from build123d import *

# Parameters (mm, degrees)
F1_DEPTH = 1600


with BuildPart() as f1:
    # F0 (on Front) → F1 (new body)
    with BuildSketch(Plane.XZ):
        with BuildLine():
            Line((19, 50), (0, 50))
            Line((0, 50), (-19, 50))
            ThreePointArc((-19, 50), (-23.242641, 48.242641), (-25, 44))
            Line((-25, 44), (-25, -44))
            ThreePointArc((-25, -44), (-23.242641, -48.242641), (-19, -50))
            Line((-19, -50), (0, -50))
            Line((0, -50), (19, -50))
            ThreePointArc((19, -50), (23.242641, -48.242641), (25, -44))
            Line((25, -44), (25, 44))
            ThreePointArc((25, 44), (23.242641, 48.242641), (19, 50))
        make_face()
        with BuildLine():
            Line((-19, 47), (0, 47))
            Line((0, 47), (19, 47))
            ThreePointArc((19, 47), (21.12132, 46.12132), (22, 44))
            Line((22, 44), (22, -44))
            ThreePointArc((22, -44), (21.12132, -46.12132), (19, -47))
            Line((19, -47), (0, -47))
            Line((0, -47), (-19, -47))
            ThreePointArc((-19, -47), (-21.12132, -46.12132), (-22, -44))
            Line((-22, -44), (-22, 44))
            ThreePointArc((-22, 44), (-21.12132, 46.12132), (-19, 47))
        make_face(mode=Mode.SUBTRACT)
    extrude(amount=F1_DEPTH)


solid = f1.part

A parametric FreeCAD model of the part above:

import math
import FreeCAD as App
import Part
import Sketcher

V = App.Vector

doc = App.newDocument("Part")
params = doc.addObject("Spreadsheet::Sheet", "Params")
for row, (alias, value) in enumerate([
    ("sketch1_radius", "5.999999 mm"),
    ("sketch1_radius2", "3.000001 mm"),
    ("sketch1_width", "38 mm"),
    ("sketch1_height", "88 mm"),
    ("pad1_length", "1600 mm"),
], start=1):
    params.set(f"A{row}", alias)
    params.set(f"B{row}", "=" + value)
    params.setAlias(f"B{row}", alias)

body = doc.addObject("PartDesign::Body", "Body")

sketch1 = body.newObject("Sketcher::SketchObject", "Sketch")
sketch1.AttachmentSupport = (doc.getObject("XZ_Plane"), [""])
sketch1.MapMode = "FlatFace"
sketch1.addGeometry(Part.LineSegment(V(19, 50, 0), V(-19, 50, 0)), False)
sketch1.addGeometry(Part.ArcOfCircle(Part.Circle(V(-19.000001, 44.000001, 0), V(0, 0, 1), 5.999999), math.radians(89.99999), math.radians(180.00001)), False)
sketch1.addGeometry(Part.LineSegment(V(-25, 44, 0), V(-25, -44, 0)), False)
sketch1.addGeometry(Part.ArcOfCircle(Part.Circle(V(-19.000001, -44.000001, 0), V(0, 0, 1), 5.999999), math.radians(179.99999), math.radians(270.00001)), False)
sketch1.addGeometry(Part.LineSegment(V(-19, -50, 0), V(19, -50, 0)), False)
sketch1.addGeometry(Part.ArcOfCircle(Part.Circle(V(19.000001, -44.000001, 0), V(0, 0, 1), 5.999999), math.radians(-90.00001), math.radians(0.00001)), False)
sketch1.addGeometry(Part.LineSegment(V(25, -44, 0), V(25, 44, 0)), False)
sketch1.addGeometry(Part.ArcOfCircle(Part.Circle(V(19.000001, 44.000001, 0), V(0, 0, 1), 5.999999), math.radians(-0.00001), math.radians(90.00001)), False)
sketch1.addGeometry(Part.ArcOfCircle(Part.Circle(V(-18.999999, 43.999999, 0), V(0, 0, 1), 3.000001), math.radians(90.000022), math.radians(179.999978)), False)
sketch1.addGeometry(Part.LineSegment(V(-19, 47, 0), V(19, 47, 0)), False)
sketch1.addGeometry(Part.ArcOfCircle(Part.Circle(V(18.999999, 43.999999, 0), V(0, 0, 1), 3.000001), math.radians(0.000022), math.radians(89.999978)), False)
sketch1.addGeometry(Part.LineSegment(V(22, 44, 0), V(22, -44, 0)), False)
sketch1.addGeometry(Part.ArcOfCircle(Part.Circle(V(18.999999, -43.999999, 0), V(0, 0, 1), 3.000001), math.radians(-89.999978), math.radians(-0.000022)), False)
sketch1.addGeometry(Part.LineSegment(V(19, -47, 0), V(-19, -47, 0)), False)
sketch1.addGeometry(Part.ArcOfCircle(Part.Circle(V(-18.999999, -43.999999, 0), V(0, 0, 1), 3.000001), math.radians(-179.999978), math.radians(-90.000022)), False)
sketch1.addGeometry(Part.LineSegment(V(-22, -44, 0), V(-22, 44, 0)), False)
sketch1.addConstraint(Sketcher.Constraint("Tangent", 0, 2, 1, 1))
sketch1.addConstraint(Sketcher.Constraint("Tangent", 1, 2, 2, 1))
sketch1.addConstraint(Sketcher.Constraint("Tangent", 2, 2, 3, 1))
sketch1.addConstraint(Sketcher.Constraint("Tangent", 3, 2, 4, 1))
sketch1.addConstraint(Sketcher.Constraint("Tangent", 4, 2, 5, 1))
sketch1.addConstraint(Sketcher.Constraint("Tangent", 5, 2, 6, 1))
sketch1.addConstraint(Sketcher.Constraint("Tangent", 6, 2, 7, 1))
sketch1.addConstraint(Sketcher.Constraint("Tangent", 7, 2, 0, 1))
sketch1.addConstraint(Sketcher.Constraint("Tangent", 8, 1, 9, 1))
sketch1.addConstraint(Sketcher.Constraint("Tangent", 9, 2, 10, 2))
sketch1.addConstraint(Sketcher.Constraint("Tangent", 10, 1, 11, 1))
sketch1.addConstraint(Sketcher.Constraint("Tangent", 11, 2, 12, 2))
sketch1.addConstraint(Sketcher.Constraint("Tangent", 12, 1, 13, 1))
sketch1.addConstraint(Sketcher.Constraint("Tangent", 13, 2, 14, 2))
sketch1.addConstraint(Sketcher.Constraint("Tangent", 14, 1, 15, 1))
sketch1.addConstraint(Sketcher.Constraint("Tangent", 15, 2, 8, 2))
sketch1.addConstraint(Sketcher.Constraint("Horizontal", 0))
sketch1.addConstraint(Sketcher.Constraint("Vertical", 2))
sketch1.addConstraint(Sketcher.Constraint("Horizontal", 4))
sketch1.addConstraint(Sketcher.Constraint("Vertical", 6))
sketch1.addConstraint(Sketcher.Constraint("Horizontal", 9))
sketch1.addConstraint(Sketcher.Constraint("Vertical", 11))
sketch1.addConstraint(Sketcher.Constraint("Horizontal", 13))
sketch1.addConstraint(Sketcher.Constraint("Vertical", 15))
sketch1.addConstraint(Sketcher.Constraint("Coincident", 8, 3, 1, 3))
sketch1.addConstraint(Sketcher.Constraint("Coincident", 10, 3, 7, 3))
sketch1.addConstraint(Sketcher.Constraint("Coincident", 12, 3, 5, 3))
sketch1.addConstraint(Sketcher.Constraint("Equal", 1, 3))
sketch1.addConstraint(Sketcher.Constraint("Equal", 3, 5))
sketch1.addConstraint(Sketcher.Constraint("Equal", 5, 7))
sketch1.addConstraint(Sketcher.Constraint("Equal", 12, 14))
sketch1.addConstraint(Sketcher.Constraint("Symmetric", 1, 3, 5, 3, -1, 1))
sketch1.addConstraint(Sketcher.Constraint("Radius", 1, 5.999999))
sketch1.addConstraint(Sketcher.Constraint("Radius", 8, 3.000001))
sketch1.addConstraint(Sketcher.Constraint("DistanceX", 0, 2, 0, 1, 38.0))
sketch1.addConstraint(Sketcher.Constraint("DistanceY", 2, 2, 2, 1, 88.0))
sketch1.setExpression("Constraints[32]", "Params.sketch1_radius")
sketch1.setExpression("Constraints[33]", "Params.sketch1_radius2")
sketch1.setExpression("Constraints[34]", "Params.sketch1_width")
sketch1.setExpression("Constraints[35]", "Params.sketch1_height")
pad1 = body.newObject("PartDesign::Pad", "Pad")
pad1.Profile = sketch1
pad1.setExpression("Length", "Params.pad1_length")

doc.recompute()
